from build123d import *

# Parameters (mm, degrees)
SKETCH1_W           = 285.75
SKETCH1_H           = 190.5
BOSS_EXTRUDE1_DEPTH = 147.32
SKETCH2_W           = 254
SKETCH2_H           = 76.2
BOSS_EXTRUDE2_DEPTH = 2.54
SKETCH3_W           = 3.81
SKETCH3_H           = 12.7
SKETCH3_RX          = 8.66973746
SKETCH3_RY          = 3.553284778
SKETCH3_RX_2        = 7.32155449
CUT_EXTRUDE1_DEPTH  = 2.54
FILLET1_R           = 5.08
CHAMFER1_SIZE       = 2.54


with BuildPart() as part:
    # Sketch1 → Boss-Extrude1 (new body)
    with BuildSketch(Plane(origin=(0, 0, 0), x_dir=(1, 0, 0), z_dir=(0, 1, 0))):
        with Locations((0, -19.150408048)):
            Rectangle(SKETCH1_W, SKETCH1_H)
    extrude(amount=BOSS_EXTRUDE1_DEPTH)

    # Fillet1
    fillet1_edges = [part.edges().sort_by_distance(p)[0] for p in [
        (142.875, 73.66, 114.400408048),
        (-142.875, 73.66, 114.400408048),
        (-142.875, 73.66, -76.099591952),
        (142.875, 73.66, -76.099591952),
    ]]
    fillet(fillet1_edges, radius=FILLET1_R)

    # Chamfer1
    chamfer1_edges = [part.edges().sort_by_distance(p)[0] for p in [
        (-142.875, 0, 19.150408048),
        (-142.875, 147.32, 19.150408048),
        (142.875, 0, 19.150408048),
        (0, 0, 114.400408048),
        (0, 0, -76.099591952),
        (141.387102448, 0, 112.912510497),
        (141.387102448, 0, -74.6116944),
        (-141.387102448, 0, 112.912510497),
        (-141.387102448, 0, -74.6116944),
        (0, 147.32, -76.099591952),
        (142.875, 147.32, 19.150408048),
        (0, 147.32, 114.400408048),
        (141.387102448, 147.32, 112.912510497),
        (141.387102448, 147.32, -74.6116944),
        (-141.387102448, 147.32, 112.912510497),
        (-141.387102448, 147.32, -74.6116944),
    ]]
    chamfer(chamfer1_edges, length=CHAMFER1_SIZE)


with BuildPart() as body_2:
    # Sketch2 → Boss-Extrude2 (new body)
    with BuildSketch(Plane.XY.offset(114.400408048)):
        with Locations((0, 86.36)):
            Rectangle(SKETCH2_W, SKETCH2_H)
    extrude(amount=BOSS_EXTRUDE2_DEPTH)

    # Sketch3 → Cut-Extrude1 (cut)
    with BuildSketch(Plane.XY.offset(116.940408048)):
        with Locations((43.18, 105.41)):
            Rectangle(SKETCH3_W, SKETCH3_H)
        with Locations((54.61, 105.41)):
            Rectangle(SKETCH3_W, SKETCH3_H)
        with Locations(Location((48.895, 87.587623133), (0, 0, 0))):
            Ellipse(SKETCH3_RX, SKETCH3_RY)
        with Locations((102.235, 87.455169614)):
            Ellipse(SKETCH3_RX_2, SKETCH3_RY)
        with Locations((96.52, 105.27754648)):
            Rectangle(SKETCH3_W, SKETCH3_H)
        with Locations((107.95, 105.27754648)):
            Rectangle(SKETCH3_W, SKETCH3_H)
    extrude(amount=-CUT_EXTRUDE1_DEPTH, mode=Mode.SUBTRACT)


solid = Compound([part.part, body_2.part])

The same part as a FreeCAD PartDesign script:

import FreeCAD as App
import Part
import Sketcher
from FreeCAD import Vector
Q = App.Units.Quantity


def edges_at(feature, points):
    """Names of the edges that pass closest to the given points."""
    edges = feature.Shape.Edges
    near = lambda p: min(range(len(edges)), key=lambda i: edges[i].distToShape(Part.Vertex(*p))[0])
    return sorted({f"Edge{near(p) + 1}" for p in points})

doc = App.newDocument("Part")
body = doc.addObject("PartDesign::Body", "Body")

# Sketch on XZ plane
sketch1 = body.newObject("Sketcher::SketchObject", "Sketch")
sketch1.AttachmentSupport = (doc.getObject("XZ_Plane"), [""])
sketch1.MapMode = "FlatFace"
sketch1.addGeometry([
    Part.LineSegment(Vector(-143, -76, 0), Vector(-143, 114, 0)),
    Part.LineSegment(Vector(-143, 114, 0), Vector(143, 114, 0)),
    Part.LineSegment(Vector(143, 114, 0), Vector(143, -76, 0)),
    Part.LineSegment(Vector(143, -76, 0), Vector(-143, -76, 0)),
], False)
sketch1.addConstraint([
    Sketcher.Constraint("Coincident", 0, 2, 1, 1),
    Sketcher.Constraint("Coincident", 1, 2, 2, 1),
    Sketcher.Constraint("Coincident", 2, 2, 3, 1),
    Sketcher.Constraint("Coincident", 3, 2, 0, 1),
    Sketcher.Constraint("Vertical", 0),
    Sketcher.Constraint("Horizontal", 1),
    Sketcher.Constraint("Vertical", 2),
    Sketcher.Constraint("Horizontal", 3),
    Sketcher.Constraint("DistanceY", 0, 1, 0, 2, Q("7.5 in")),
    Sketcher.Constraint("DistanceX", 1, 1, 1, 2, Q("11.25 in")),
    Sketcher.Constraint("DistanceX", 0, 2, -1, 1, Q("5.625 in")),
    Sketcher.Constraint("DistanceY", -1, 1, 0, 2, 114.400408),
])
pad1 = body.newObject("PartDesign::Pad", "Pad")
pad1.Profile = sketch1
pad1.Length = Q("5.8 in")
pad1.Reversed = True
doc.recompute()

fillet = body.newObject("PartDesign::Fillet", "Fillet")
fillet.Base = (pad1, edges_at(pad1, [
    (142.875, 73.66, 114.4),
    (-142.875, 73.66, 114.4),
    (-142.875, 73.66, -76.1),
    (142.875, 73.66, -76.1),
]))
fillet.Radius = Q("0.2 in")
doc.recompute()

chamfer = body.newObject("PartDesign::Chamfer", "Chamfer")
chamfer.Base = (fillet, edges_at(fillet, [
    (-142.875, 0, 19.15),
    (-142.875, 147.32, 19.15),
    (142.875, 0, 19.15),
    (0, 0, 114.4),
    (0, 0, -76.1),
    (141.387, 0, 112.913),
    (141.387, 0, -74.612),
    (-141.387, 0, 112.913),
    (-141.387, 0, -74.612),
    (0, 147.32, -76.1),
    (142.875, 147.32, 19.15),
    (0, 147.32, 114.4),
    (141.387, 147.32, 112.913),
    (141.387, 147.32, -74.612),
    (-141.387, 147.32, 112.913),
    (-141.387, 147.32, -74.612),
]))
chamfer.Size = Q("0.1 in")
body2 = doc.addObject("PartDesign::Body", "Body001")

# Sketch on XY plane
sketch2 = body2.newObject("Sketcher::SketchObject", "Sketch001")
sketch2.AttachmentSupport = (doc.getObject("XY_Plane001"), [""])
sketch2.MapMode = "FlatFace"
sketch2.AttachmentOffset = App.Placement(Vector(0, 0, 114.400408), App.Rotation())
sketch2.addGeometry([
    Part.LineSegment(Vector(-127, 124, 0), Vector(-127, 48, 0)),
    Part.LineSegment(Vector(-127, 48, 0), Vector(127, 48, 0)),
    Part.LineSegment(Vector(127, 48, 0), Vector(127, 124, 0)),
    Part.LineSegment(Vector(127, 124, 0), Vector(-127, 124, 0)),
], False)
sketch2.addConstraint([
    Sketcher.Constraint("Coincident", 0, 2, 1, 1),
    Sketcher.Constraint("Coincident", 1, 2, 2, 1),
    Sketcher.Constraint("Coincident", 2, 2, 3, 1),
    Sketcher.Constraint("Coincident", 3, 2, 0, 1),
    Sketcher.Constraint("Vertical", 0),
    Sketcher.Constraint("Horizontal", 1),
    Sketcher.Constraint("Vertical", 2),
    Sketcher.Constraint("Horizontal", 3),
    Sketcher.Constraint("DistanceX", 1, 1, 1, 2, Q("10 in")),
    Sketcher.Constraint("DistanceY", 0, 2, 0, 1, Q("3 in")),
    Sketcher.Constraint("DistanceX", 0, 2, -1, 1, Q("5 in")),
    Sketcher.Constraint("DistanceY", -1, 1, 0, 2, Q("1.9 in")),
])
pad2 = body2.newObject("PartDesign::Pad", "Pad001")
pad2.Profile = sketch2
pad2.Length = Q("0.1 in")

# Sketch on XY plane
sketch3 = body2.newObject("Sketcher::SketchObject", "Sketch002")
sketch3.AttachmentSupport = (doc.getObject("XY_Plane001"), [""])
sketch3.MapMode = "FlatFace"
sketch3.AttachmentOffset = App.Placement(Vector(0, 0, 116.940408), App.Rotation())
sketch3.addGeometry([
    Part.LineSegment(Vector(41.275, 111.76, 0), Vector(41.275, 99.06, 0)),  # 0
    Part.LineSegment(Vector(41.275, 99.06, 0), Vector(45.085, 99.06, 0)),  # 1
    Part.LineSegment(Vector(45.085, 99.06, 0), Vector(45.085, 111.76, 0)),  # 2
    Part.LineSegment(Vector(45.085, 111.76, 0), Vector(41.275, 111.76, 0)),  # 3
    Part.LineSegment(Vector(52.705, 111.76, 0), Vector(52.705, 99.06, 0)),  # 4
    Part.LineSegment(Vector(52.705, 99.06, 0), Vector(56.515, 99.06, 0)),  # 5
    Part.LineSegment(Vector(56.515, 99.06, 0), Vector(56.515, 111.76, 0)),  # 6
    Part.LineSegment(Vector(56.515, 111.76, 0), Vector(52.705, 111.76, 0)),  # 7
    Part.Ellipse(Vector(57.564737, 87.587623, 0), Vector(48.895, 91.140908, 0), Vector(48.895, 87.587623, 0)),  # 8
    Part.Ellipse(Vector(109.556554, 87.45517, 0), Vector(102.235, 91.008454, 0), Vector(102.235, 87.45517, 0)),  # 9
    Part.LineSegment(Vector(94.615, 111.627546, 0), Vector(94.615, 98.927546, 0)),  # 10
    Part.LineSegment(Vector(94.615, 98.927546, 0), Vector(98.425, 98.927546, 0)),  # 11
    Part.LineSegment(Vector(98.425, 98.927546, 0), Vector(98.425, 111.627546, 0)),  # 12
    Part.LineSegment(Vector(98.425, 111.627546, 0), Vector(94.615, 111.627546, 0)),  # 13
    Part.LineSegment(Vector(106.045, 111.627546, 0), Vector(106.045, 98.927546, 0)),  # 14
    Part.LineSegment(Vector(106.045, 98.927546, 0), Vector(109.855, 98.927546, 0)),  # 15
    Part.LineSegment(Vector(109.855, 98.927546, 0), Vector(109.855, 111.627546, 0)),  # 16
    Part.LineSegment(Vector(109.855, 111.627546, 0), Vector(106.045, 111.627546, 0)),  # 17
], False)
sketch3.addConstraint([
    Sketcher.Constraint("Block", 8),
    Sketcher.Constraint("Block", 9),
    Sketcher.Constraint("Coincident", 0, 2, 1, 1),
    Sketcher.Constraint("Coincident", 1, 2, 2, 1),
    Sketcher.Constraint("Coincident", 2, 2, 3, 1),
    Sketcher.Constraint("Coincident", 3, 2, 0, 1),
    Sketcher.Constraint("Coincident", 4, 2, 5, 1),
    Sketcher.Constraint("Coincident", 5, 2, 6, 1),
    Sketcher.Constraint("Coincident", 6, 2, 7, 1),
    Sketcher.Constraint("Coincident", 7, 2, 4, 1),
    Sketcher.Constraint("Coincident", 10, 2, 11, 1),
    Sketcher.Constraint("Coincident", 11, 2, 12, 1),
    Sketcher.Constraint("Coincident", 12, 2, 13, 1),
    Sketcher.Constraint("Coincident", 13, 2, 10, 1),
    Sketcher.Constraint("Coincident", 14, 2, 15, 1),
    Sketcher.Constraint("Coincident", 15, 2, 16, 1),
    Sketcher.Constraint("Coincident", 16, 2, 17, 1),
    Sketcher.Constraint("Coincident", 17, 2, 14, 1),
    Sketcher.Constraint("Vertical", 0),
    Sketcher.Constraint("Horizontal", 1),
    Sketcher.Constraint("Vertical", 2),
    Sketcher.Constraint("Horizontal", 3),
    Sketcher.Constraint("Vertical", 4),
    Sketcher.Constraint("Horizontal", 5),
    Sketcher.Constraint("Vertical", 6),
    Sketcher.Constraint("Horizontal", 7),
    Sketcher.Constraint("Vertical", 10),
    Sketcher.Constraint("Horizontal", 11),
    Sketcher.Constraint("Vertical", 12),
    Sketcher.Constraint("Horizontal", 13),
    Sketcher.Constraint("Vertical", 14),
    Sketcher.Constraint("Horizontal", 15),
    Sketcher.Constraint("Vertical", 16),
    Sketcher.Constraint("Horizontal", 17),
    Sketcher.Constraint("Horizontal", 1, 2, 4, 2),
    Sketcher.Constraint("Horizontal", 3, 2, 6, 2),
    Sketcher.Constraint("Horizontal", 11, 2, 14, 2),
    Sketcher.Constraint("Horizontal", 13, 2, 16, 2),
    Sketcher.Constraint("Equal", 3, 5),
    Sketcher.Constraint("Equal", 7, 11),
    Sketcher.Constraint("Equal", 13, 15),
    Sketcher.Constraint("Equal", 6, 10),
    Sketcher.Constraint("DistanceY", 0, 2, 0, 1, Q("0.5 in")),
    Sketcher.Constraint("DistanceX", 1, 1, 1, 2, Q("0.15 in")),
    Sketcher.Constraint("DistanceY", -1, 1, 0, 2, Q("3.9 in")),
    Sketcher.Constraint("DistanceX", 1, 2, 4, 2, Q("0.3 in")),
    Sketcher.Constraint("DistanceX", 5, 2, 10, 2, Q("1.5 in")),
    Sketcher.Constraint("DistanceX", 11, 2, 14, 2, Q("0.3 in")),
    Sketcher.Constraint("DistanceX", -1, 1, 0, 2, Q("1.625 in")),
    Sketcher.Constraint("DistanceY", -1, 1, 10, 2, 98.927546),
])
pocket1 = body2.newObject("PartDesign::Pocket", "Pocket")
pocket1.Profile = sketch3
pocket1.Length = Q("0.1 in")

doc.recompute()
